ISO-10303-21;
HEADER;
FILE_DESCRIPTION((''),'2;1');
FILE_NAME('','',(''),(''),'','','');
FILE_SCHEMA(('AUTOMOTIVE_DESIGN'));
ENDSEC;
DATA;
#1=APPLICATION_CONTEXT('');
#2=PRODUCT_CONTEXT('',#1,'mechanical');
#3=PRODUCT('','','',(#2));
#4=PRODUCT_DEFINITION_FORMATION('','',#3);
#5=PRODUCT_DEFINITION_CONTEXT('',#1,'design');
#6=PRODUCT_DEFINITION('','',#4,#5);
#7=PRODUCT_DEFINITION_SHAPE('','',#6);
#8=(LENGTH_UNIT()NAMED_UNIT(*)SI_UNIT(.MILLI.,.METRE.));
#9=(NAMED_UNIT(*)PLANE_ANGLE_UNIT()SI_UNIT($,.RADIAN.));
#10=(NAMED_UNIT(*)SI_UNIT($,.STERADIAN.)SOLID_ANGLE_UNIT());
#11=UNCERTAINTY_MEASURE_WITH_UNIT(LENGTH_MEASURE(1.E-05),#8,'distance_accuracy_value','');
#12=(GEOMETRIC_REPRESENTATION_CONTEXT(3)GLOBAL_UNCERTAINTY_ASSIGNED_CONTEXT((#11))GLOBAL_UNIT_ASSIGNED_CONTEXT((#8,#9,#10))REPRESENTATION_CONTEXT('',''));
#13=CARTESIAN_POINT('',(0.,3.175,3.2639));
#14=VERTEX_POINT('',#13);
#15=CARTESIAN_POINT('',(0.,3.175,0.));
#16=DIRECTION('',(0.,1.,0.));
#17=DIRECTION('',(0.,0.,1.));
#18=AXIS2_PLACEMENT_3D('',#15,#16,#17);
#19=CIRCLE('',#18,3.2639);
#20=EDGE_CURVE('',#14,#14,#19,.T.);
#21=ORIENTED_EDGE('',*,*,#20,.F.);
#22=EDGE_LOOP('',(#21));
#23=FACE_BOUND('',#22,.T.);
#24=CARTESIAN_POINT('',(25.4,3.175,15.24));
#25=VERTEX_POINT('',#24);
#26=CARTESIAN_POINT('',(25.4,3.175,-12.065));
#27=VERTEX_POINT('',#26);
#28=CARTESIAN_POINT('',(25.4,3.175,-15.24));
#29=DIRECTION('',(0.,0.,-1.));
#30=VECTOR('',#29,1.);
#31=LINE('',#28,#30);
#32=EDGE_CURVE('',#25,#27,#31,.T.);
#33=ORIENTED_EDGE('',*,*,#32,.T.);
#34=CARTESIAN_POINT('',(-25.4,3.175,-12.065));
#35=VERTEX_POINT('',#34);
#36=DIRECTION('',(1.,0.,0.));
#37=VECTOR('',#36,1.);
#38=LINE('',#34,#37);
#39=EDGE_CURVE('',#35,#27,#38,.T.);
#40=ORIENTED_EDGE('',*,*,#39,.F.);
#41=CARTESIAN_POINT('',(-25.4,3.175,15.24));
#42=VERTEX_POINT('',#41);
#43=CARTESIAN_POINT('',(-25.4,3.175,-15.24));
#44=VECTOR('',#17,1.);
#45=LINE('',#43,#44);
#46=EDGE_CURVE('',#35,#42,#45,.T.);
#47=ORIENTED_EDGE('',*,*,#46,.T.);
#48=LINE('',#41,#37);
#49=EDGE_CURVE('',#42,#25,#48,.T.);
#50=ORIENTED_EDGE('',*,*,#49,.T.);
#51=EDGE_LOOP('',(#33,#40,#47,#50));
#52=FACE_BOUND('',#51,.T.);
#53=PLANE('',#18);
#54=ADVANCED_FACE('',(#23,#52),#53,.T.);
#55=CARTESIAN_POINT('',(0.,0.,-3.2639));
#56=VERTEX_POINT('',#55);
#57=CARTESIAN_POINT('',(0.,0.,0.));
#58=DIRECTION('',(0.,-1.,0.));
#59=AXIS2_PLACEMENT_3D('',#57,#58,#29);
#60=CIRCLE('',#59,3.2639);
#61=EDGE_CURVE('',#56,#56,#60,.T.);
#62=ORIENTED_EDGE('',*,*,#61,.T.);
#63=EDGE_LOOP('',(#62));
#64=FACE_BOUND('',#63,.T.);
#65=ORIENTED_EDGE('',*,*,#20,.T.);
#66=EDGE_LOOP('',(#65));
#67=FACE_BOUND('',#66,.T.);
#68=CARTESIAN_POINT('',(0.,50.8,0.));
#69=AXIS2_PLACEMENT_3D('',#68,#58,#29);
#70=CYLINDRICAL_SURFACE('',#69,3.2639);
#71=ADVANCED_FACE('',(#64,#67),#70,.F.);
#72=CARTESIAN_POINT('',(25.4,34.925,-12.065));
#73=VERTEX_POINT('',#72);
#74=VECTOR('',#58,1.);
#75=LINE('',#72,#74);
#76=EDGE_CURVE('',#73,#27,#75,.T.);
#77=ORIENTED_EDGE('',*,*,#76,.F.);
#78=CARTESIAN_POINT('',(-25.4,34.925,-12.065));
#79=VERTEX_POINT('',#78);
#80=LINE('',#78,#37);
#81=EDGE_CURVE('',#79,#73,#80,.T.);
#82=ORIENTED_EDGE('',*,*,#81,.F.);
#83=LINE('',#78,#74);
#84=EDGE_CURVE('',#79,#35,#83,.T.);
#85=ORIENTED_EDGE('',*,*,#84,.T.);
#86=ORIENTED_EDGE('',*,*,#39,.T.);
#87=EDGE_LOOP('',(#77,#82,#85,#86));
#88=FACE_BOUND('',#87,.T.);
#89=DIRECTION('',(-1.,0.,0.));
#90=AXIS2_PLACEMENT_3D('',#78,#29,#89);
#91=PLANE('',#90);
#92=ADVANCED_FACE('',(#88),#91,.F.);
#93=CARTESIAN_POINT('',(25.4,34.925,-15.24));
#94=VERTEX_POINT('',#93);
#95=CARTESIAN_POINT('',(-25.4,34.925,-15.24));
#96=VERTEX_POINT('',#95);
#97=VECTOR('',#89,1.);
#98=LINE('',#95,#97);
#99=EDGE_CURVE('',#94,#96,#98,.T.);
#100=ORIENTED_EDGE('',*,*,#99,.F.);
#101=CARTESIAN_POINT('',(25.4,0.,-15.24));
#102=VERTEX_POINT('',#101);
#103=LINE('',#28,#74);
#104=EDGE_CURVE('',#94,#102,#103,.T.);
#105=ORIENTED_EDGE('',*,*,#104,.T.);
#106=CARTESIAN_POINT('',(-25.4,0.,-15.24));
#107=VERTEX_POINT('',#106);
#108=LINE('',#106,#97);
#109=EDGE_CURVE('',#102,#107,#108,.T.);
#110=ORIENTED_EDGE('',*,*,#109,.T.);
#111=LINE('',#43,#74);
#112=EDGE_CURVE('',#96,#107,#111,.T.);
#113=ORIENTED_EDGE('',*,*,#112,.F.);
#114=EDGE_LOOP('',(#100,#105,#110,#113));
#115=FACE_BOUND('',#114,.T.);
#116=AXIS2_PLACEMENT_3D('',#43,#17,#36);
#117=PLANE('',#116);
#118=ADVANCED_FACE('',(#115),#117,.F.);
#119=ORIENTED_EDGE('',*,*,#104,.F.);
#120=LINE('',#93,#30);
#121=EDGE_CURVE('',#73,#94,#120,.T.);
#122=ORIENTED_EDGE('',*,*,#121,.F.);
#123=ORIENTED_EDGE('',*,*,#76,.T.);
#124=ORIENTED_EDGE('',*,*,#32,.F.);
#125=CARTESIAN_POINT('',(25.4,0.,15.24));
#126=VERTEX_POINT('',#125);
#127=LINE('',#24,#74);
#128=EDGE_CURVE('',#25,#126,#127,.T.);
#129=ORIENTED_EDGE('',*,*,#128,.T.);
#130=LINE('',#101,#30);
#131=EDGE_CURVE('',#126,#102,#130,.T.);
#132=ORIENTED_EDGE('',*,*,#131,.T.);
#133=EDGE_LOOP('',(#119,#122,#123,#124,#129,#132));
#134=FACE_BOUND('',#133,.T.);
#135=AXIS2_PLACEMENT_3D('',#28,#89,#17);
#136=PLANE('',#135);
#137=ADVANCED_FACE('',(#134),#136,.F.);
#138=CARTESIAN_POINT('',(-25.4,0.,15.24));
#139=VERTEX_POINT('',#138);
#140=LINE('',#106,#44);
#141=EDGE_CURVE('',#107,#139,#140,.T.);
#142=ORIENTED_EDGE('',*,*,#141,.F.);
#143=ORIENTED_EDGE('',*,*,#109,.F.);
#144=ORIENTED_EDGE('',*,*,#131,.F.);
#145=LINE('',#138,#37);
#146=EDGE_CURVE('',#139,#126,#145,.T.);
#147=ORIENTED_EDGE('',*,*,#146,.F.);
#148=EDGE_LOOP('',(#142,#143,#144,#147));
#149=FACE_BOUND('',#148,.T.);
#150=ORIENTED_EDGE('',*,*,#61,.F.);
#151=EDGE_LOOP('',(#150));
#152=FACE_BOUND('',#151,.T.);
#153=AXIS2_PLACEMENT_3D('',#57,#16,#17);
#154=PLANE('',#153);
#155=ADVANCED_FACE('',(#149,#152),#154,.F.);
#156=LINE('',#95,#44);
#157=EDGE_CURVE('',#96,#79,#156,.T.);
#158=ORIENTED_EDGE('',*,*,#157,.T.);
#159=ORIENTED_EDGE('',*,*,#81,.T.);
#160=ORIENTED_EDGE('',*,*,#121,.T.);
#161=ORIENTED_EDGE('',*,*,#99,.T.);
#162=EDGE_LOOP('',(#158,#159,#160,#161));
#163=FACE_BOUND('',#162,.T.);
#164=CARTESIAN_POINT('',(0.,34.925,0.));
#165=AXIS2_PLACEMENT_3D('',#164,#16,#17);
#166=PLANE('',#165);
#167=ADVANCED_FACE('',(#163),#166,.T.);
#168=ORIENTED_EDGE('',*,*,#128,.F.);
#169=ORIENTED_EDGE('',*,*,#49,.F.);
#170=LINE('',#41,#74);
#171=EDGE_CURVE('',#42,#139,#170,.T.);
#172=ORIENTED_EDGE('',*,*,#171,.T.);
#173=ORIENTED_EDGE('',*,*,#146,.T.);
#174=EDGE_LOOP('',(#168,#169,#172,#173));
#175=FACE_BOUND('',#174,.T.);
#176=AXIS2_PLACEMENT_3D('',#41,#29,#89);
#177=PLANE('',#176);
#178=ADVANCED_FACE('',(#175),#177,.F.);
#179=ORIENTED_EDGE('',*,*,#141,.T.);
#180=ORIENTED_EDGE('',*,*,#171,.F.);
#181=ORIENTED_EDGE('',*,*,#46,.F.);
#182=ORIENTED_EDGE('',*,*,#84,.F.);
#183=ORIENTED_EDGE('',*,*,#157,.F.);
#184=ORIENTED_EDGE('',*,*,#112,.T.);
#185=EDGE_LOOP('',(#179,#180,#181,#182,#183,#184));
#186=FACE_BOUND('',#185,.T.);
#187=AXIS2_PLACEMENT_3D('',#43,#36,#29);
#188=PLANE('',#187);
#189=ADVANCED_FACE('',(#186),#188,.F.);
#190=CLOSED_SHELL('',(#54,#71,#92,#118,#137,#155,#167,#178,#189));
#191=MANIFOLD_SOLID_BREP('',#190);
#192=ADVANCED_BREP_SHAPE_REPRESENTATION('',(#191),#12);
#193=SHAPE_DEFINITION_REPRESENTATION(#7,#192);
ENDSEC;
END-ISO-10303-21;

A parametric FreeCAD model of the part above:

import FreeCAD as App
import Part
import Sketcher

V = App.Vector
Q = App.Units.Quantity

doc = App.newDocument("Part")
params = doc.addObject("Spreadsheet::Sheet", "Params")
for row, (alias, value) in enumerate([
    ("sketch1_width", "2 in"),
    ("sketch1_height", "1.2 in"),
    ("pad1_length", "0.125 in"),
    ("sketch2_width", "2 in"),
    ("sketch2_height", "0.125 in"),
    ("pad2_length", "1.25 in"),
    ("sketch3_diameter", "0.257 in"),
    ("pocket1_length", "2 in"),
], start=1):
    params.set(f"A{row}", alias)
    params.set(f"B{row}", "=" + value)
    params.setAlias(f"B{row}", alias)

body = doc.addObject("PartDesign::Body", "Body")

sketch1 = body.newObject("Sketcher::SketchObject", "Sketch")
sketch1.AttachmentSupport = (doc.getObject("XZ_Plane"), [""])
sketch1.MapMode = "FlatFace"
sketch1.addGeometry(Part.LineSegment(V(-25, -15, 0), V(-25, 15, 0)), False)
sketch1.addGeometry(Part.LineSegment(V(-25, 15, 0), V(25, 15, 0)), False)
sketch1.addGeometry(Part.LineSegment(V(25, 15, 0), V(25, -15, 0)), False)
sketch1.addGeometry(Part.LineSegment(V(25, -15, 0), V(-25, -15, 0)), False)
sketch1.addConstraint(Sketcher.Constraint("Coincident", 0, 2, 1, 1))
sketch1.addConstraint(Sketcher.Constraint("Coincident", 1, 2, 2, 1))
sketch1.addConstraint(Sketcher.Constraint("Coincident", 2, 2, 3, 1))
sketch1.addConstraint(Sketcher.Constraint("Coincident", 3, 2, 0, 1))
sketch1.addConstraint(Sketcher.Constraint("Vertical", 0))
sketch1.addConstraint(Sketcher.Constraint("Horizontal", 1))
sketch1.addConstraint(Sketcher.Constraint("Vertical", 2))
sketch1.addConstraint(Sketcher.Constraint("Horizontal", 3))
sketch1.addConstraint(Sketcher.Constraint("Symmetric", 0, 2, 2, 2, -1, 1))
sketch1.addConstraint(Sketcher.Constraint("DistanceX", 1, 1, 1, 2, Q("2 in")))
sketch1.addConstraint(Sketcher.Constraint("DistanceY", 0, 1, 0, 2, Q("1.2 in")))
sketch1.setExpression("Constraints[9]", "Params.sketch1_width")
sketch1.setExpression("Constraints[10]", "Params.sketch1_height")
pad1 = body.newObject("PartDesign::Pad", "Pad")
pad1.Profile = sketch1
pad1.setExpression("Length", "Params.pad1_length")
pad1.Reversed = True

sketch2 = body.newObject("Sketcher::SketchObject", "Sketch001")
sketch2.AttachmentSupport = (doc.getObject("XZ_Plane"), [""])
sketch2.MapMode = "FlatFace"
sketch2.AttachmentOffset = App.Placement(V(0, 0, -0.125 * 25.4), App.Rotation())
sketch2.addGeometry(Part.LineSegment(V(-25.4, -15.2, 0), V(-25.4, -12.1, 0)), False)
sketch2.addGeometry(Part.LineSegment(V(-25.4, -12.1, 0), V(25.4, -12.1, 0)), False)
sketch2.addGeometry(Part.LineSegment(V(25.4, -12.1, 0), V(25.4, -15.2, 0)), False)
sketch2.addGeometry(Part.LineSegment(V(25.4, -15.2, 0), V(-25.4, -15.2, 0)), False)
sketch2.addConstraint(Sketcher.Constraint("Coincident", 0, 2, 1, 1))
sketch2.addConstraint(Sketcher.Constraint("Coincident", 1, 2, 2, 1))
sketch2.addConstraint(Sketcher.Constraint("Coincident", 2, 2, 3, 1))
sketch2.addConstraint(Sketcher.Constraint("Coincident", 3, 2, 0, 1))
sketch2.addConstraint(Sketcher.Constraint("Vertical", 0))
sketch2.addConstraint(Sketcher.Constraint("Horizontal", 1))
sketch2.addConstraint(Sketcher.Constraint("Vertical", 2))
sketch2.addConstraint(Sketcher.Constraint("Horizontal", 3))
sketch2.addConstraint(Sketcher.Constraint("DistanceX", 1, 1, 1, 2, Q("2 in")))
sketch2.addConstraint(Sketcher.Constraint("DistanceX", 0, 2, -1, 1, Q("1 in")))
sketch2.addConstraint(Sketcher.Constraint("DistanceY", 2, 2, -1, 1, Q("0.6 in")))
sketch2.addConstraint(Sketcher.Constraint("DistanceY", 0, 1, 0, 2, Q("0.125 in")))
sketch2.setExpression("Constraints[8]", "Params.sketch2_width")
sketch2.setExpression("Constraints[11]", "Params.sketch2_height")
pad2 = body.newObject("PartDesign::Pad", "Pad001")
pad2.Profile = sketch2
pad2.setExpression("Length", "Params.pad2_length")
pad2.Reversed = True

sketch3 = body.newObject("Sketcher::SketchObject", "Sketch002")
sketch3.AttachmentSupport = (doc.getObject("XZ_Plane"), [""])
sketch3.MapMode = "FlatFace"
sketch3.addGeometry(Part.Circle(V(0, 0, 0), V(0, 0, 1), 3.3), False)
sketch3.addConstraint(Sketcher.Constraint("Coincident", 0, 3, -1, 1))
sketch3.addConstraint(Sketcher.Constraint("Diameter", 0, Q("0.257 in")))
sketch3.setExpression("Constraints[1]", "Params.sketch3_diameter")
pocket1 = body.newObject("PartDesign::Pocket", "Pocket")
pocket1.Profile = sketch3
pocket1.setExpression("Length", "Params.pocket1_length")

doc.recompute()
